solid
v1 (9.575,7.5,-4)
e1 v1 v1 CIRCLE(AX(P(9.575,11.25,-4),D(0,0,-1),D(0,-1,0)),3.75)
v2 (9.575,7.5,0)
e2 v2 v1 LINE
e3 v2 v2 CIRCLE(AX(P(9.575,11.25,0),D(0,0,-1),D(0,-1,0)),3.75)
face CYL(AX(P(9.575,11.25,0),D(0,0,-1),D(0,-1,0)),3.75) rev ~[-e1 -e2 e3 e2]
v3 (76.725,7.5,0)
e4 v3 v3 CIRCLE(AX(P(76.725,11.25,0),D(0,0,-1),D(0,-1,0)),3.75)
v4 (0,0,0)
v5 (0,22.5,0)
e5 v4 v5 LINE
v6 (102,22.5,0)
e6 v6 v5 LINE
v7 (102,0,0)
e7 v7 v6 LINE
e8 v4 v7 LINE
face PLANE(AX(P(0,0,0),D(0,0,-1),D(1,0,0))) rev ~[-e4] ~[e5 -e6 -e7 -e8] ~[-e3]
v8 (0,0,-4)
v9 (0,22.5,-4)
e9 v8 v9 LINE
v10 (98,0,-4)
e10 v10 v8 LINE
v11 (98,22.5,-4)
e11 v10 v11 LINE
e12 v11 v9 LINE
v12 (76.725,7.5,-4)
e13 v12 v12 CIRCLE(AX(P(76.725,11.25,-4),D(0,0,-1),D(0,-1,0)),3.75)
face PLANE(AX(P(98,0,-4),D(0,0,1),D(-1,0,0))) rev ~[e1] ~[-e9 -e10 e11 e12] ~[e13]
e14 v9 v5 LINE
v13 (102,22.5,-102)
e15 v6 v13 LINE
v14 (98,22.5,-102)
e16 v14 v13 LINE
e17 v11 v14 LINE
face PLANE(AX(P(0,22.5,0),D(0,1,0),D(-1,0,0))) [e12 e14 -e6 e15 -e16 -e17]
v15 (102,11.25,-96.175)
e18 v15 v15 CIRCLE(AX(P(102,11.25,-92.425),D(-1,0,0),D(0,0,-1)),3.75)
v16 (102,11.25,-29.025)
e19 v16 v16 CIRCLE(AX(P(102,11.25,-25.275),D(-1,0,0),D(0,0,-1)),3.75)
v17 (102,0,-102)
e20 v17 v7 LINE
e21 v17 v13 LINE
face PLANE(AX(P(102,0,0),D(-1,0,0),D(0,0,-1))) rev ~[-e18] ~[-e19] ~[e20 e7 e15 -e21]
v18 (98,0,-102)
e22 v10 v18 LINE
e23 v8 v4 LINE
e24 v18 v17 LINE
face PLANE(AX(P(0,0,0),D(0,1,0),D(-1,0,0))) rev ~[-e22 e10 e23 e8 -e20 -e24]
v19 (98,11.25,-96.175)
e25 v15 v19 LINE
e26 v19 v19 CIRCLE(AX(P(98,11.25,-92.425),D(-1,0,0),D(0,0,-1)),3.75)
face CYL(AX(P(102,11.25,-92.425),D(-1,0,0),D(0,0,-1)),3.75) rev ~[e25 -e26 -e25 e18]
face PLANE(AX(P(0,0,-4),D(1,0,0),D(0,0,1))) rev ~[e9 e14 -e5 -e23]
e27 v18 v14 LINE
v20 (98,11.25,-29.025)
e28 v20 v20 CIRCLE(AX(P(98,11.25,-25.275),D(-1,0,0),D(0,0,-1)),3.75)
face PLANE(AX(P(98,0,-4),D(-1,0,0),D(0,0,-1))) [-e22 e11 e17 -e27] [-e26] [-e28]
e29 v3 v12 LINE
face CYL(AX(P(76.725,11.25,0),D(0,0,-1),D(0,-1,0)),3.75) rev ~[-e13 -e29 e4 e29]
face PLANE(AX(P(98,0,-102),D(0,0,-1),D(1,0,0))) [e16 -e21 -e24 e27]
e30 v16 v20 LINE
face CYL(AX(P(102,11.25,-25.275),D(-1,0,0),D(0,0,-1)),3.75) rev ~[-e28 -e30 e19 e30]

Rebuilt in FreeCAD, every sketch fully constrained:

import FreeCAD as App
import Part
import Sketcher

doc = App.newDocument("Part")
body = doc.addObject("PartDesign::Body", "Body")

# Sketch on XZ plane
sketch1 = body.newObject("Sketcher::SketchObject", "Sketch")
sketch1.AttachmentSupport = (doc.getObject("XZ_Plane"), [""])
sketch1.MapMode = "FlatFace"
sketch1.addGeometry([
    Part.LineSegment(App.Vector(0, -4, 0), App.Vector(0, 0, 0)),  # 0
    Part.LineSegment(App.Vector(0, 0, 0), App.Vector(102, 0, 0)),  # 1
    Part.LineSegment(App.Vector(102, 0, 0), App.Vector(102, -102, 0)),  # 2
    Part.LineSegment(App.Vector(102, -102, 0), App.Vector(98, -102, 0)),  # 3
    Part.LineSegment(App.Vector(98, -102, 0), App.Vector(98, -4, 0)),  # 4
    Part.LineSegment(App.Vector(98, -4, 0), App.Vector(0, -4, 0)),  # 5
], False)
sketch1.addConstraint([
    Sketcher.Constraint("Coincident", 0, 2, 1, 1),
    Sketcher.Constraint("Coincident", 1, 2, 2, 1),
    Sketcher.Constraint("Coincident", 2, 2, 3, 1),
    Sketcher.Constraint("Coincident", 3, 2, 4, 1),
    Sketcher.Constraint("Coincident", 4, 2, 5, 1),
    Sketcher.Constraint("Coincident", 5, 2, 0, 1),
    Sketcher.Constraint("Vertical", 0),
    Sketcher.Constraint("Horizontal", 1),
    Sketcher.Constraint("Vertical", 2),
    Sketcher.Constraint("Horizontal", 3),
    Sketcher.Constraint("Vertical", 4),
    Sketcher.Constraint("Horizontal", 5),
    Sketcher.Constraint("Coincident", 0, 2, -1, 1),
    Sketcher.Constraint("Equal", 3, 0),
    Sketcher.Constraint("Equal", 1, 2),
    Sketcher.Constraint("DistanceX", 1, 1, 1, 2, 102.0),
    Sketcher.Constraint("DistanceX", 3, 2, 3, 1, 4.0),
])
pad1 = body.newObject("PartDesign::Pad", "Pad")
pad1.Profile = sketch1
pad1.Length = 22.5
pad1.Reversed = True

# Sketch on YZ plane
sketch2 = body.newObject("Sketcher::SketchObject", "Sketch001")
sketch2.AttachmentSupport = (doc.getObject("YZ_Plane"), [""])
sketch2.MapMode = "FlatFace"
sketch2.AttachmentOffset = App.Placement(App.Vector(0, 0, 102), App.Rotation())
sketch2.addGeometry([
    Part.Circle(App.Vector(11.2, -92.4, 0), App.Vector(0, 0, 1), 3.8),
    Part.Circle(App.Vector(11.2, -25.3, 0), App.Vector(0, 0, 1), 3.8),
], False)
sketch2.addConstraint([
    Sketcher.Constraint("Equal", 0, 1),
    Sketcher.Constraint("Vertical", 0, 3, 1, 3),
    Sketcher.Constraint("Diameter", 0, 7.5),
    Sketcher.Constraint("DistanceX", -1, 1, 0, 3, 11.25),
    Sketcher.Constraint("DistanceY", 0, 3, 1, 3, 67.15),
    Sketcher.Constraint("DistanceY", 0, 3, -1, 1, 92.425),
])
doc.recompute()
hole = body.newObject("PartDesign::Hole", "Hole")
hole.Profile = sketch2
hole.ThreadType = "None"
hole.Diameter = 7.5
hole.DepthType = "Dimension"
hole.Depth = 10
hole.DrillPoint = "Flat"

# Sketch on XY plane
sketch3 = body.newObject("Sketcher::SketchObject", "Sketch002")
sketch3.AttachmentSupport = (doc.getObject("XY_Plane"), [""])
sketch3.MapMode = "FlatFace"
sketch3.addGeometry([
    Part.Circle(App.Vector(9.6, 11.2, 0), App.Vector(0, 0, 1), 3.8),
    Part.Circle(App.Vector(76.7, 11.2, 0), App.Vector(0, 0, 1), 3.8),
], False)
sketch3.addConstraint([
    Sketcher.Constraint("Equal", 0, 1),
    Sketcher.Constraint("Horizontal", 0, 3, 1, 3),
    Sketcher.Constraint("Diameter", 0, 7.5),
    Sketcher.Constraint("DistanceY", -1, 1, 0, 3, 11.25),
    Sketcher.Constraint("DistanceX", 0, 3, 1, 3, 67.15),
    Sketcher.Constraint("DistanceX", -1, 1, 0, 3, 9.575),
])
doc.recompute()
hole2 = body.newObject("PartDesign::Hole", "Hole001")
hole2.Profile = sketch3
hole2.ThreadType = "None"
hole2.Diameter = 7.5
hole2.DepthType = "Dimension"
hole2.Depth = 10
hole2.DrillPoint = "Flat"

doc.recompute()
